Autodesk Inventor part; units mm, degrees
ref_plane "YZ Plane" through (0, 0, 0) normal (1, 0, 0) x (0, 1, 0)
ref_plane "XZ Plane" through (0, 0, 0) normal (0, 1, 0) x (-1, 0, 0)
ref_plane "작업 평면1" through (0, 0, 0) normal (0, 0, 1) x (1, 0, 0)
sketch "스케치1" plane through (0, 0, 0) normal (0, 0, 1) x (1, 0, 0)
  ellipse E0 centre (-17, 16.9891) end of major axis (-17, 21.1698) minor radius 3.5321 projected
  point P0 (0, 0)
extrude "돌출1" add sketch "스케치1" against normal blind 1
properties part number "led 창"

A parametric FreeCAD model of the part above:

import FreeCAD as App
import Part
import Sketcher
from FreeCAD import Vector

doc = App.newDocument("Part")
body = doc.addObject("PartDesign::Body", "Body")

# Sketch on XY plane
sketch1 = body.newObject("Sketcher::SketchObject", "Sketch")
sketch1.AttachmentSupport = (doc.getObject("XY_Plane"), [""])
sketch1.MapMode = "FlatFace"
sketch1.addGeometry(Part.Ellipse(Vector(-17, 21.1698, 0), Vector(-20.5321, 16.9891, 0), Vector(-17, 16.9891, 0)), False)
sketch1.addConstraint(Sketcher.Constraint("Block", 0))
pad1 = body.newObject("PartDesign::Pad", "Pad")
pad1.Profile = sketch1
pad1.Length = 1
pad1.Reversed = True

doc.recompute()
